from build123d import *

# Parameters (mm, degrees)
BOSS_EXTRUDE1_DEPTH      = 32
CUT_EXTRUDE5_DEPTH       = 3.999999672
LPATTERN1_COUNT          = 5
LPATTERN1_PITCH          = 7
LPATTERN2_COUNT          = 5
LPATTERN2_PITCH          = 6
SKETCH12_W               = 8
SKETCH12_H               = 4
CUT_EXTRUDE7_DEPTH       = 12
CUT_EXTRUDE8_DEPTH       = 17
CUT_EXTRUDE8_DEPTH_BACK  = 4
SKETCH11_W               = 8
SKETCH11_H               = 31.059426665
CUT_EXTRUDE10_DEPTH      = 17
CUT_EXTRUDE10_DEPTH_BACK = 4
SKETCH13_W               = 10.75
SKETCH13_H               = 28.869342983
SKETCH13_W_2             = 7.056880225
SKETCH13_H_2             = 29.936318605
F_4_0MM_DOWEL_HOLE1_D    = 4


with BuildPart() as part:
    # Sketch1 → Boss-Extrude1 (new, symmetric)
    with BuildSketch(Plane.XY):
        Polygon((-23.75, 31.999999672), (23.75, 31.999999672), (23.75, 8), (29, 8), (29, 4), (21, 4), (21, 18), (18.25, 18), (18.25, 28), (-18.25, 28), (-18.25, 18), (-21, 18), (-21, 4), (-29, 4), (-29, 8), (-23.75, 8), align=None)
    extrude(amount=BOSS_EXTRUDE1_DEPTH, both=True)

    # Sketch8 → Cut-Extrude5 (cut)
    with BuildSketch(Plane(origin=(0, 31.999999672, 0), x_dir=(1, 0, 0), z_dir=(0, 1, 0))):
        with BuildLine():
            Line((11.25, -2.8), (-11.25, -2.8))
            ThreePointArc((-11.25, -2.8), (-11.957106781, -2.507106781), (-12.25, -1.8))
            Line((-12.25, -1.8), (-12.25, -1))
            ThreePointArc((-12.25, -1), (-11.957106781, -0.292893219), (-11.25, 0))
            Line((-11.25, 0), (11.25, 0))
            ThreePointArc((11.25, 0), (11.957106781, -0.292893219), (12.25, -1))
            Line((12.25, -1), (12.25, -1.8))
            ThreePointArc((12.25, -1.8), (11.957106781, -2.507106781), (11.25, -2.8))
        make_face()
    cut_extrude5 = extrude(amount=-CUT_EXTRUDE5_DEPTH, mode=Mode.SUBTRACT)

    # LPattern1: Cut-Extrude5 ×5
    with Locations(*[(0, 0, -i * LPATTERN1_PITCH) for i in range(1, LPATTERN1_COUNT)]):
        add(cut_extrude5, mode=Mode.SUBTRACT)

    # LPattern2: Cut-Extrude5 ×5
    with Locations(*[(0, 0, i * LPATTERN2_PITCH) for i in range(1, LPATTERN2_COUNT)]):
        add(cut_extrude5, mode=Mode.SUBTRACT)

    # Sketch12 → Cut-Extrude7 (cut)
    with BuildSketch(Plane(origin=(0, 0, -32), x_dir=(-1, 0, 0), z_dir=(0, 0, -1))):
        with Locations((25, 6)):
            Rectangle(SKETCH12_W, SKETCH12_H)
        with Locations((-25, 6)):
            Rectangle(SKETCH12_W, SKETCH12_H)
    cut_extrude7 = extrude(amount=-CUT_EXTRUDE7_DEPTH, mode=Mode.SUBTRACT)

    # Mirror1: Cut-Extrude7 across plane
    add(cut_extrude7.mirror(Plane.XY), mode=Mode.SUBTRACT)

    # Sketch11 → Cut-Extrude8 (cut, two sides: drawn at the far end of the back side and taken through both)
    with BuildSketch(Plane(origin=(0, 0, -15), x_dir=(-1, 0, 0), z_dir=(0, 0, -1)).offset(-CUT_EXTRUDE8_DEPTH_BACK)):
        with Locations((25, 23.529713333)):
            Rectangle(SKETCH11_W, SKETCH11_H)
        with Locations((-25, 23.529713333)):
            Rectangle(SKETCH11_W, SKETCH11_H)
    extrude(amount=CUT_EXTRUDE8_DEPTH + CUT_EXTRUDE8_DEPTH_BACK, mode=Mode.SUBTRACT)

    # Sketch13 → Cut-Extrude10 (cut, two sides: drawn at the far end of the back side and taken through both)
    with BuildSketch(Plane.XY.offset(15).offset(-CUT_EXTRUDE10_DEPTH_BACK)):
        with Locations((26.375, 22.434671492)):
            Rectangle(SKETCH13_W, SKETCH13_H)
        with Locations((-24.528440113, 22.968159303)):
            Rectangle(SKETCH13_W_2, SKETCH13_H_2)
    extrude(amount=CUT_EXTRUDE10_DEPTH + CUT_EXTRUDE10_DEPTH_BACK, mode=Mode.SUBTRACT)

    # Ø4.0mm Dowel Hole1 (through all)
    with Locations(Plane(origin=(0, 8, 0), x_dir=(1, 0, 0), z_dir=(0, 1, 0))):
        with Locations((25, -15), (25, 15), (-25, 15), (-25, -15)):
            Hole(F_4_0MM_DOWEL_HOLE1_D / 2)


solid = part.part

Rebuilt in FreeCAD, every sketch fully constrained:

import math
import FreeCAD as App
import Part
import Sketcher
from FreeCAD import Vector
Q = App.Units.Quantity


def add_polygon(sketch, points):
    """Adds a closed chain of lines whose ends are joined by coincident constraints."""
    first, n = sketch.GeometryCount, len(points)
    for a, b in zip(points, points[1:] + points[:1]):
        sketch.addGeometry(Part.LineSegment(App.Vector(*a, 0), App.Vector(*b, 0)), False)
    for i in range(n):
        sketch.addConstraint(Sketcher.Constraint("Coincident", first + i, 2, first + (i + 1) % n, 1))

doc = App.newDocument("Part")
params = doc.addObject("Spreadsheet::Sheet", "Params")
for row, (alias, value) in enumerate([
    ("sketch1_width", "8 mm"),
    ("sketch1_height", "24 mm"),
    ("sketch1_height2", "4 mm"),
    ("sketch1_height3", "14 mm"),
    ("sketch1_height4", "10 mm"),
    ("pad1_length", "64 mm"),
    ("sketch2_radius", "1 mm"),
    ("sketch2_width", "22.5 mm"),
    ("sketch2_height", "0.8 mm"),
    ("pocket1_length", "4 mm"),
    ("linearpattern_pitch", "7 mm"),
    ("linearpattern2_pitch", "6 mm"),
    ("sketch3_width", "8 mm"),
    ("sketch3_height", "4 mm"),
    ("pocket2_length", "12 mm"),
    ("sketch4_width", "8 mm"),
    ("pocket3_length", "17 mm"),
    ("pocket3_length2", "4 mm"),
    ("sketch5_width", "10.75 mm"),
    ("pocket4_length", "17 mm"),
    ("pocket4_length2", "4 mm"),
    ("sketch6_diameter", "4 mm"),
    ("hole_diameter", "4 mm"),
], start=1):
    params.set(f"A{row}", alias)
    params.set(f"B{row}", "=" + value)
    params.setAlias(f"B{row}", alias)

body = doc.addObject("PartDesign::Body", "Body")

# Sketch on XY plane
sketch1 = body.newObject("Sketcher::SketchObject", "Sketch")
sketch1.AttachmentSupport = (doc.getObject("XY_Plane"), [""])
sketch1.MapMode = "FlatFace"
add_polygon(sketch1, [(23.75, 32), (-23.75, 32), (-23.75, 8), (-29, 8), (-29, 4), (-21, 4), (-21, 18), (-18.25, 18), (-18.25, 28), (18.25, 28), (18.25, 18), (21, 18), (21, 4), (29, 4), (29, 8), (23.75, 8)])  # lines 0-15
sketch1.addConstraint([
    Sketcher.Constraint("Horizontal", 0),
    Sketcher.Constraint("Vertical", 1),
    Sketcher.Constraint("Horizontal", 2),
    Sketcher.Constraint("Vertical", 3),
    Sketcher.Constraint("Horizontal", 4),
    Sketcher.Constraint("Vertical", 5),
    Sketcher.Constraint("Horizontal", 6),
    Sketcher.Constraint("Vertical", 7),
    Sketcher.Constraint("Horizontal", 8),
    Sketcher.Constraint("Vertical", 9),
    Sketcher.Constraint("Horizontal", 10),
    Sketcher.Constraint("Vertical", 11),
    Sketcher.Constraint("Horizontal", 12),
    Sketcher.Constraint("Vertical", 13),
    Sketcher.Constraint("Horizontal", 14),
    Sketcher.Constraint("Vertical", 15),
    Sketcher.Constraint("Symmetric", 6, 2, 9, 2, -2),
    Sketcher.Constraint("Symmetric", 4, 2, 11, 2, -2),
    Sketcher.Constraint("Symmetric", 2, 2, 13, 2, -2),
    Sketcher.Constraint("Equal", 2, 14),
    Sketcher.Constraint("DistanceX", 4, 1, 4, 2, Q("8 mm")),
    Sketcher.Constraint("DistanceY", 1, 2, 1, 1, Q("24 mm")),
    Sketcher.Constraint("DistanceY", 3, 2, 3, 1, Q("4 mm")),
    Sketcher.Constraint("DistanceY", 5, 1, 5, 2, Q("14 mm")),
    Sketcher.Constraint("DistanceY", 7, 1, 7, 2, Q("10 mm")),
    Sketcher.Constraint("DistanceX", 0, 2, 0, 1, Q("47.5 mm")),
    Sketcher.Constraint("DistanceX", 8, 1, 8, 2, Q("36.5 mm")),
    Sketcher.Constraint("DistanceY", -1, 1, 0, 2, Q("32 mm")),
    Sketcher.Constraint("DistanceX", 2, 2, -1, 1, Q("29 mm")),
])
sketch1.setExpression("Constraints[36]", "Params.sketch1_width")
sketch1.setExpression("Constraints[37]", "Params.sketch1_height")
sketch1.setExpression("Constraints[38]", "Params.sketch1_height2")
sketch1.setExpression("Constraints[39]", "Params.sketch1_height3")
sketch1.setExpression("Constraints[40]", "Params.sketch1_height4")
pad1 = body.newObject("PartDesign::Pad", "Pad")
pad1.Profile = sketch1
pad1.setExpression("Length", "Params.pad1_length")
pad1.Midplane = True

# Sketch on XZ plane
sketch2 = body.newObject("Sketcher::SketchObject", "Sketch001")
sketch2.AttachmentSupport = (doc.getObject("XZ_Plane"), [""])
sketch2.MapMode = "FlatFace"
sketch2.AttachmentOffset = App.Placement(Vector(0, 0, -32), App.Rotation())
sketch2.addGeometry([
    Part.LineSegment(Vector(-11.25, 2.8, 0), Vector(11.25, 2.8, 0)),  # 0
    Part.ArcOfCircle(Part.Circle(Vector(11.25, 1.8, 0), Vector(0, 0, 1), 1), math.radians(0), math.radians(90)),  # 1
    Part.LineSegment(Vector(12.25, 1.8, 0), Vector(12.25, 1, 0)),  # 2
    Part.ArcOfCircle(Part.Circle(Vector(11.25, 1, 0), Vector(0, 0, 1), 1), math.radians(-90), math.radians(0)),  # 3
    Part.LineSegment(Vector(11.25, 0, 0), Vector(-11.25, 0, 0)),  # 4
    Part.ArcOfCircle(Part.Circle(Vector(-11.25, 1, 0), Vector(0, 0, 1), 1), math.radians(-180), math.radians(-90)),  # 5
    Part.LineSegment(Vector(-12.25, 1, 0), Vector(-12.25, 1.8, 0)),  # 6
    Part.ArcOfCircle(Part.Circle(Vector(-11.25, 1.8, 0), Vector(0, 0, 1), 1), math.radians(90), math.radians(180)),  # 7
], False)
sketch2.addConstraint([
    Sketcher.Constraint("Tangent", 0, 2, 1, 2),
    Sketcher.Constraint("Tangent", 1, 1, 2, 1),
    Sketcher.Constraint("Tangent", 2, 2, 3, 2),
    Sketcher.Constraint("Tangent", 3, 1, 4, 1),
    Sketcher.Constraint("Tangent", 4, 2, 5, 2),
    Sketcher.Constraint("Tangent", 5, 1, 6, 1),
    Sketcher.Constraint("Tangent", 6, 2, 7, 2),
    Sketcher.Constraint("Tangent", 7, 1, 0, 1),
    Sketcher.Constraint("Horizontal", 0),
    Sketcher.Constraint("Vertical", 2),
    Sketcher.Constraint("Horizontal", 4),
    Sketcher.Constraint("Vertical", 6),
    Sketcher.Constraint("Equal", 1, 3),
    Sketcher.Constraint("Equal", 3, 5),
    Sketcher.Constraint("Equal", 5, 7),
    Sketcher.Constraint("Symmetric", 3, 1, 4, 2, -1, 1),
    Sketcher.Constraint("Radius", 1, Q("1 mm")),
    Sketcher.Constraint("DistanceX", 0, 1, 0, 2, Q("22.5 mm")),
    Sketcher.Constraint("DistanceY", 2, 2, 2, 1, Q("0.8 mm")),
])
sketch2.setExpression("Constraints[16]", "Params.sketch2_radius")
sketch2.setExpression("Constraints[17]", "Params.sketch2_width")
sketch2.setExpression("Constraints[18]", "Params.sketch2_height")
pocket1 = body.newObject("PartDesign::Pocket", "Pocket")
pocket1.Profile = sketch2
pocket1.setExpression("Length", "Params.pocket1_length")
pocket1.Reversed = True
doc.recompute()

linearpattern = body.newObject("PartDesign::LinearPattern", "LinearPattern")
linearpattern.Originals = [pocket1]
linearpattern.Direction = (doc.getObject("Z_Axis"), [""])
linearpattern.Mode = "offset"
linearpattern.setExpression("Offset", "Params.linearpattern_pitch")
linearpattern.Occurrences = 5
linearpattern.Reversed = True
body.Tip = linearpattern
doc.recompute()

linearpattern2 = body.newObject("PartDesign::LinearPattern", "LinearPattern001")
linearpattern2.Originals = [pocket1]
linearpattern2.Direction = (doc.getObject("Z_Axis"), [""])
linearpattern2.Mode = "offset"
linearpattern2.setExpression("Offset", "Params.linearpattern2_pitch")
linearpattern2.Occurrences = 5
body.Tip = linearpattern2

# Sketch on XY plane
sketch3 = body.newObject("Sketcher::SketchObject", "Sketch002")
sketch3.AttachmentSupport = (doc.getObject("XY_Plane"), [""])
sketch3.MapMode = "FlatFace"
sketch3.AttachmentOffset = App.Placement(Vector(0, 0, -32), App.Rotation())
add_polygon(sketch3, [(-21, 8), (-21, 4), (-29, 4), (-29, 8)])  # lines 0-3
add_polygon(sketch3, [(29, 8), (29, 4), (21, 4), (21, 8)])  # lines 4-7
sketch3.addConstraint([
    Sketcher.Constraint("Vertical", 0),
    Sketcher.Constraint("Horizontal", 1),
    Sketcher.Constraint("Vertical", 2),
    Sketcher.Constraint("Horizontal", 3),
    Sketcher.Constraint("Vertical", 4),
    Sketcher.Constraint("Horizontal", 5),
    Sketcher.Constraint("Vertical", 6),
    Sketcher.Constraint("Horizontal", 7),
    Sketcher.Constraint("Symmetric", 1, 2, 4, 2, -2),
    Sketcher.Constraint("Symmetric", 3, 2, 6, 2, -2),
    Sketcher.Constraint("DistanceX", 1, 2, 1, 1, Q("8 mm")),
    Sketcher.Constraint("DistanceY", 0, 2, 0, 1, Q("4 mm")),
    Sketcher.Constraint("DistanceX", 0, 2, -1, 1, Q("21 mm")),
    Sketcher.Constraint("DistanceY", -1, 1, 0, 2, Q("4 mm")),
])
sketch3.setExpression("Constraints[18]", "Params.sketch3_width")
sketch3.setExpression("Constraints[19]", "Params.sketch3_height")
pocket2 = body.newObject("PartDesign::Pocket", "Pocket001")
pocket2.Profile = sketch3
pocket2.setExpression("Length", "Params.pocket2_length")
pocket2.Reversed = True
doc.recompute()

mirrored = body.newObject("PartDesign::Mirrored", "Mirrored")
mirrored.Originals = [pocket2]
mirrored.MirrorPlane = (doc.getObject("XY_Plane"), [""])
body.Tip = mirrored

# Sketch on XY plane
sketch4 = body.newObject("Sketcher::SketchObject", "Sketch003")
sketch4.AttachmentSupport = (doc.getObject("XY_Plane"), [""])
sketch4.MapMode = "FlatFace"
sketch4.AttachmentOffset = App.Placement(Vector(0, 0, -15), App.Rotation())
add_polygon(sketch4, [(-21, 39.059427), (-21, 8), (-29, 8), (-29, 39.059427)])  # lines 0-3
add_polygon(sketch4, [(29, 39.059427), (29, 8), (21, 8), (21, 39.059427)])  # lines 4-7
sketch4.addConstraint([
    Sketcher.Constraint("Vertical", 0),
    Sketcher.Constraint("Horizontal", 1),
    Sketcher.Constraint("Vertical", 2),
    Sketcher.Constraint("Horizontal", 3),
    Sketcher.Constraint("Vertical", 4),
    Sketcher.Constraint("Horizontal", 5),
    Sketcher.Constraint("Vertical", 6),
    Sketcher.Constraint("Horizontal", 7),
    Sketcher.Constraint("Symmetric", 1, 2, 4, 2, -2),
    Sketcher.Constraint("Symmetric", 3, 2, 6, 2, -2),
    Sketcher.Constraint("DistanceX", 1, 2, 1, 1, Q("8 mm")),
    Sketcher.Constraint("DistanceX", 0, 2, -1, 1, Q("21 mm")),
    Sketcher.Constraint("DistanceY", -1, 1, 0, 2, Q("8 mm")),
    Sketcher.Constraint("DistanceY", 0, 2, 0, 1, Q("31.059427 mm")),
])
sketch4.setExpression("Constraints[18]", "Params.sketch4_width")
pocket3 = body.newObject("PartDesign::Pocket", "Pocket002")
pocket3.Profile = sketch4
pocket3.Type = "TwoLengths"
pocket3.setExpression("Length", "Params.pocket3_length")
pocket3.setExpression("Length2", "Params.pocket3_length2")

# Sketch on XY plane
sketch5 = body.newObject("Sketcher::SketchObject", "Sketch004")
sketch5.AttachmentSupport = (doc.getObject("XY_Plane"), [""])
sketch5.MapMode = "FlatFace"
sketch5.AttachmentOffset = App.Placement(Vector(0, 0, 15), App.Rotation())
add_polygon(sketch5, [(21, 36.869343), (21, 8), (31.75, 8), (31.75, 36.869343)])  # lines 0-3
add_polygon(sketch5, [(-28.05688, 37.936319), (-28.05688, 8), (-21, 8), (-21, 37.936319)])  # lines 4-7
sketch5.addConstraint([
    Sketcher.Constraint("Vertical", 0),
    Sketcher.Constraint("Horizontal", 1),
    Sketcher.Constraint("Vertical", 2),
    Sketcher.Constraint("Horizontal", 3),
    Sketcher.Constraint("Vertical", 4),
    Sketcher.Constraint("Horizontal", 5),
    Sketcher.Constraint("Vertical", 6),
    Sketcher.Constraint("Horizontal", 7),
    Sketcher.Constraint("Symmetric", 0, 2, 5, 2, -2),
    Sketcher.Constraint("DistanceX", -1, 1, 0, 2, Q("21 mm")),
    Sketcher.Constraint("DistanceY", -1, 1, 0, 2, Q("8 mm")),
    Sketcher.Constraint("DistanceX", 1, 1, 1, 2, Q("10.75 mm")),
    Sketcher.Constraint("DistanceX", 5, 1, 5, 2, Q("7.05688 mm")),
    Sketcher.Constraint("DistanceY", 4, 2, 4, 1, Q("29.936319 mm")),
    Sketcher.Constraint("DistanceY", 0, 2, 0, 1, Q("28.869343 mm")),
])
sketch5.setExpression("Constraints[19]", "Params.sketch5_width")
pocket4 = body.newObject("PartDesign::Pocket", "Pocket003")
pocket4.Profile = sketch5
pocket4.Type = "TwoLengths"
pocket4.setExpression("Length", "Params.pocket4_length")
pocket4.setExpression("Length2", "Params.pocket4_length2")
pocket4.Reversed = True

# Sketch on XZ plane
sketch6 = body.newObject("Sketcher::SketchObject", "Sketch005")
sketch6.AttachmentSupport = (doc.getObject("XZ_Plane"), [""])
sketch6.MapMode = "FlatFace"
sketch6.AttachmentOffset = App.Placement(Vector(0, 0, -8), App.Rotation())
sketch6.addGeometry([
    Part.Circle(Vector(25, 15, 0), Vector(0, 0, 1), 2),
    Part.Circle(Vector(25, -15, 0), Vector(0, 0, 1), 2),
    Part.Circle(Vector(-25, -15, 0), Vector(0, 0, 1), 2),
    Part.Circle(Vector(-25, 15, 0), Vector(0, 0, 1), 2),
], False)
sketch6.addConstraint([
    Sketcher.Constraint("Equal", 0, 1),
    Sketcher.Constraint("Equal", 1, 2),
    Sketcher.Constraint("Equal", 2, 3),
    Sketcher.Constraint("Symmetric", 0, 3, 2, 3, -1, 1),
    Sketcher.Constraint("Symmetric", 1, 3, 3, 3, -1, 1),
    Sketcher.Constraint("Symmetric", 1, 3, 2, 3, -2),
    Sketcher.Constraint("Diameter", 0, Q("4 mm")),
    Sketcher.Constraint("DistanceX", -1, 1, 0, 3, Q("25 mm")),
    Sketcher.Constraint("DistanceY", -1, 1, 0, 3, Q("15 mm")),
])
sketch6.setExpression("Constraints[6]", "Params.sketch6_diameter")
doc.recompute()
hole = body.newObject("PartDesign::Hole", "Hole")
hole.Profile = sketch6
hole.ThreadType = "None"
hole.setExpression("Diameter", "Params.hole_diameter")
hole.DepthType = "ThroughAll"
hole.Reversed = True

doc.recompute()
